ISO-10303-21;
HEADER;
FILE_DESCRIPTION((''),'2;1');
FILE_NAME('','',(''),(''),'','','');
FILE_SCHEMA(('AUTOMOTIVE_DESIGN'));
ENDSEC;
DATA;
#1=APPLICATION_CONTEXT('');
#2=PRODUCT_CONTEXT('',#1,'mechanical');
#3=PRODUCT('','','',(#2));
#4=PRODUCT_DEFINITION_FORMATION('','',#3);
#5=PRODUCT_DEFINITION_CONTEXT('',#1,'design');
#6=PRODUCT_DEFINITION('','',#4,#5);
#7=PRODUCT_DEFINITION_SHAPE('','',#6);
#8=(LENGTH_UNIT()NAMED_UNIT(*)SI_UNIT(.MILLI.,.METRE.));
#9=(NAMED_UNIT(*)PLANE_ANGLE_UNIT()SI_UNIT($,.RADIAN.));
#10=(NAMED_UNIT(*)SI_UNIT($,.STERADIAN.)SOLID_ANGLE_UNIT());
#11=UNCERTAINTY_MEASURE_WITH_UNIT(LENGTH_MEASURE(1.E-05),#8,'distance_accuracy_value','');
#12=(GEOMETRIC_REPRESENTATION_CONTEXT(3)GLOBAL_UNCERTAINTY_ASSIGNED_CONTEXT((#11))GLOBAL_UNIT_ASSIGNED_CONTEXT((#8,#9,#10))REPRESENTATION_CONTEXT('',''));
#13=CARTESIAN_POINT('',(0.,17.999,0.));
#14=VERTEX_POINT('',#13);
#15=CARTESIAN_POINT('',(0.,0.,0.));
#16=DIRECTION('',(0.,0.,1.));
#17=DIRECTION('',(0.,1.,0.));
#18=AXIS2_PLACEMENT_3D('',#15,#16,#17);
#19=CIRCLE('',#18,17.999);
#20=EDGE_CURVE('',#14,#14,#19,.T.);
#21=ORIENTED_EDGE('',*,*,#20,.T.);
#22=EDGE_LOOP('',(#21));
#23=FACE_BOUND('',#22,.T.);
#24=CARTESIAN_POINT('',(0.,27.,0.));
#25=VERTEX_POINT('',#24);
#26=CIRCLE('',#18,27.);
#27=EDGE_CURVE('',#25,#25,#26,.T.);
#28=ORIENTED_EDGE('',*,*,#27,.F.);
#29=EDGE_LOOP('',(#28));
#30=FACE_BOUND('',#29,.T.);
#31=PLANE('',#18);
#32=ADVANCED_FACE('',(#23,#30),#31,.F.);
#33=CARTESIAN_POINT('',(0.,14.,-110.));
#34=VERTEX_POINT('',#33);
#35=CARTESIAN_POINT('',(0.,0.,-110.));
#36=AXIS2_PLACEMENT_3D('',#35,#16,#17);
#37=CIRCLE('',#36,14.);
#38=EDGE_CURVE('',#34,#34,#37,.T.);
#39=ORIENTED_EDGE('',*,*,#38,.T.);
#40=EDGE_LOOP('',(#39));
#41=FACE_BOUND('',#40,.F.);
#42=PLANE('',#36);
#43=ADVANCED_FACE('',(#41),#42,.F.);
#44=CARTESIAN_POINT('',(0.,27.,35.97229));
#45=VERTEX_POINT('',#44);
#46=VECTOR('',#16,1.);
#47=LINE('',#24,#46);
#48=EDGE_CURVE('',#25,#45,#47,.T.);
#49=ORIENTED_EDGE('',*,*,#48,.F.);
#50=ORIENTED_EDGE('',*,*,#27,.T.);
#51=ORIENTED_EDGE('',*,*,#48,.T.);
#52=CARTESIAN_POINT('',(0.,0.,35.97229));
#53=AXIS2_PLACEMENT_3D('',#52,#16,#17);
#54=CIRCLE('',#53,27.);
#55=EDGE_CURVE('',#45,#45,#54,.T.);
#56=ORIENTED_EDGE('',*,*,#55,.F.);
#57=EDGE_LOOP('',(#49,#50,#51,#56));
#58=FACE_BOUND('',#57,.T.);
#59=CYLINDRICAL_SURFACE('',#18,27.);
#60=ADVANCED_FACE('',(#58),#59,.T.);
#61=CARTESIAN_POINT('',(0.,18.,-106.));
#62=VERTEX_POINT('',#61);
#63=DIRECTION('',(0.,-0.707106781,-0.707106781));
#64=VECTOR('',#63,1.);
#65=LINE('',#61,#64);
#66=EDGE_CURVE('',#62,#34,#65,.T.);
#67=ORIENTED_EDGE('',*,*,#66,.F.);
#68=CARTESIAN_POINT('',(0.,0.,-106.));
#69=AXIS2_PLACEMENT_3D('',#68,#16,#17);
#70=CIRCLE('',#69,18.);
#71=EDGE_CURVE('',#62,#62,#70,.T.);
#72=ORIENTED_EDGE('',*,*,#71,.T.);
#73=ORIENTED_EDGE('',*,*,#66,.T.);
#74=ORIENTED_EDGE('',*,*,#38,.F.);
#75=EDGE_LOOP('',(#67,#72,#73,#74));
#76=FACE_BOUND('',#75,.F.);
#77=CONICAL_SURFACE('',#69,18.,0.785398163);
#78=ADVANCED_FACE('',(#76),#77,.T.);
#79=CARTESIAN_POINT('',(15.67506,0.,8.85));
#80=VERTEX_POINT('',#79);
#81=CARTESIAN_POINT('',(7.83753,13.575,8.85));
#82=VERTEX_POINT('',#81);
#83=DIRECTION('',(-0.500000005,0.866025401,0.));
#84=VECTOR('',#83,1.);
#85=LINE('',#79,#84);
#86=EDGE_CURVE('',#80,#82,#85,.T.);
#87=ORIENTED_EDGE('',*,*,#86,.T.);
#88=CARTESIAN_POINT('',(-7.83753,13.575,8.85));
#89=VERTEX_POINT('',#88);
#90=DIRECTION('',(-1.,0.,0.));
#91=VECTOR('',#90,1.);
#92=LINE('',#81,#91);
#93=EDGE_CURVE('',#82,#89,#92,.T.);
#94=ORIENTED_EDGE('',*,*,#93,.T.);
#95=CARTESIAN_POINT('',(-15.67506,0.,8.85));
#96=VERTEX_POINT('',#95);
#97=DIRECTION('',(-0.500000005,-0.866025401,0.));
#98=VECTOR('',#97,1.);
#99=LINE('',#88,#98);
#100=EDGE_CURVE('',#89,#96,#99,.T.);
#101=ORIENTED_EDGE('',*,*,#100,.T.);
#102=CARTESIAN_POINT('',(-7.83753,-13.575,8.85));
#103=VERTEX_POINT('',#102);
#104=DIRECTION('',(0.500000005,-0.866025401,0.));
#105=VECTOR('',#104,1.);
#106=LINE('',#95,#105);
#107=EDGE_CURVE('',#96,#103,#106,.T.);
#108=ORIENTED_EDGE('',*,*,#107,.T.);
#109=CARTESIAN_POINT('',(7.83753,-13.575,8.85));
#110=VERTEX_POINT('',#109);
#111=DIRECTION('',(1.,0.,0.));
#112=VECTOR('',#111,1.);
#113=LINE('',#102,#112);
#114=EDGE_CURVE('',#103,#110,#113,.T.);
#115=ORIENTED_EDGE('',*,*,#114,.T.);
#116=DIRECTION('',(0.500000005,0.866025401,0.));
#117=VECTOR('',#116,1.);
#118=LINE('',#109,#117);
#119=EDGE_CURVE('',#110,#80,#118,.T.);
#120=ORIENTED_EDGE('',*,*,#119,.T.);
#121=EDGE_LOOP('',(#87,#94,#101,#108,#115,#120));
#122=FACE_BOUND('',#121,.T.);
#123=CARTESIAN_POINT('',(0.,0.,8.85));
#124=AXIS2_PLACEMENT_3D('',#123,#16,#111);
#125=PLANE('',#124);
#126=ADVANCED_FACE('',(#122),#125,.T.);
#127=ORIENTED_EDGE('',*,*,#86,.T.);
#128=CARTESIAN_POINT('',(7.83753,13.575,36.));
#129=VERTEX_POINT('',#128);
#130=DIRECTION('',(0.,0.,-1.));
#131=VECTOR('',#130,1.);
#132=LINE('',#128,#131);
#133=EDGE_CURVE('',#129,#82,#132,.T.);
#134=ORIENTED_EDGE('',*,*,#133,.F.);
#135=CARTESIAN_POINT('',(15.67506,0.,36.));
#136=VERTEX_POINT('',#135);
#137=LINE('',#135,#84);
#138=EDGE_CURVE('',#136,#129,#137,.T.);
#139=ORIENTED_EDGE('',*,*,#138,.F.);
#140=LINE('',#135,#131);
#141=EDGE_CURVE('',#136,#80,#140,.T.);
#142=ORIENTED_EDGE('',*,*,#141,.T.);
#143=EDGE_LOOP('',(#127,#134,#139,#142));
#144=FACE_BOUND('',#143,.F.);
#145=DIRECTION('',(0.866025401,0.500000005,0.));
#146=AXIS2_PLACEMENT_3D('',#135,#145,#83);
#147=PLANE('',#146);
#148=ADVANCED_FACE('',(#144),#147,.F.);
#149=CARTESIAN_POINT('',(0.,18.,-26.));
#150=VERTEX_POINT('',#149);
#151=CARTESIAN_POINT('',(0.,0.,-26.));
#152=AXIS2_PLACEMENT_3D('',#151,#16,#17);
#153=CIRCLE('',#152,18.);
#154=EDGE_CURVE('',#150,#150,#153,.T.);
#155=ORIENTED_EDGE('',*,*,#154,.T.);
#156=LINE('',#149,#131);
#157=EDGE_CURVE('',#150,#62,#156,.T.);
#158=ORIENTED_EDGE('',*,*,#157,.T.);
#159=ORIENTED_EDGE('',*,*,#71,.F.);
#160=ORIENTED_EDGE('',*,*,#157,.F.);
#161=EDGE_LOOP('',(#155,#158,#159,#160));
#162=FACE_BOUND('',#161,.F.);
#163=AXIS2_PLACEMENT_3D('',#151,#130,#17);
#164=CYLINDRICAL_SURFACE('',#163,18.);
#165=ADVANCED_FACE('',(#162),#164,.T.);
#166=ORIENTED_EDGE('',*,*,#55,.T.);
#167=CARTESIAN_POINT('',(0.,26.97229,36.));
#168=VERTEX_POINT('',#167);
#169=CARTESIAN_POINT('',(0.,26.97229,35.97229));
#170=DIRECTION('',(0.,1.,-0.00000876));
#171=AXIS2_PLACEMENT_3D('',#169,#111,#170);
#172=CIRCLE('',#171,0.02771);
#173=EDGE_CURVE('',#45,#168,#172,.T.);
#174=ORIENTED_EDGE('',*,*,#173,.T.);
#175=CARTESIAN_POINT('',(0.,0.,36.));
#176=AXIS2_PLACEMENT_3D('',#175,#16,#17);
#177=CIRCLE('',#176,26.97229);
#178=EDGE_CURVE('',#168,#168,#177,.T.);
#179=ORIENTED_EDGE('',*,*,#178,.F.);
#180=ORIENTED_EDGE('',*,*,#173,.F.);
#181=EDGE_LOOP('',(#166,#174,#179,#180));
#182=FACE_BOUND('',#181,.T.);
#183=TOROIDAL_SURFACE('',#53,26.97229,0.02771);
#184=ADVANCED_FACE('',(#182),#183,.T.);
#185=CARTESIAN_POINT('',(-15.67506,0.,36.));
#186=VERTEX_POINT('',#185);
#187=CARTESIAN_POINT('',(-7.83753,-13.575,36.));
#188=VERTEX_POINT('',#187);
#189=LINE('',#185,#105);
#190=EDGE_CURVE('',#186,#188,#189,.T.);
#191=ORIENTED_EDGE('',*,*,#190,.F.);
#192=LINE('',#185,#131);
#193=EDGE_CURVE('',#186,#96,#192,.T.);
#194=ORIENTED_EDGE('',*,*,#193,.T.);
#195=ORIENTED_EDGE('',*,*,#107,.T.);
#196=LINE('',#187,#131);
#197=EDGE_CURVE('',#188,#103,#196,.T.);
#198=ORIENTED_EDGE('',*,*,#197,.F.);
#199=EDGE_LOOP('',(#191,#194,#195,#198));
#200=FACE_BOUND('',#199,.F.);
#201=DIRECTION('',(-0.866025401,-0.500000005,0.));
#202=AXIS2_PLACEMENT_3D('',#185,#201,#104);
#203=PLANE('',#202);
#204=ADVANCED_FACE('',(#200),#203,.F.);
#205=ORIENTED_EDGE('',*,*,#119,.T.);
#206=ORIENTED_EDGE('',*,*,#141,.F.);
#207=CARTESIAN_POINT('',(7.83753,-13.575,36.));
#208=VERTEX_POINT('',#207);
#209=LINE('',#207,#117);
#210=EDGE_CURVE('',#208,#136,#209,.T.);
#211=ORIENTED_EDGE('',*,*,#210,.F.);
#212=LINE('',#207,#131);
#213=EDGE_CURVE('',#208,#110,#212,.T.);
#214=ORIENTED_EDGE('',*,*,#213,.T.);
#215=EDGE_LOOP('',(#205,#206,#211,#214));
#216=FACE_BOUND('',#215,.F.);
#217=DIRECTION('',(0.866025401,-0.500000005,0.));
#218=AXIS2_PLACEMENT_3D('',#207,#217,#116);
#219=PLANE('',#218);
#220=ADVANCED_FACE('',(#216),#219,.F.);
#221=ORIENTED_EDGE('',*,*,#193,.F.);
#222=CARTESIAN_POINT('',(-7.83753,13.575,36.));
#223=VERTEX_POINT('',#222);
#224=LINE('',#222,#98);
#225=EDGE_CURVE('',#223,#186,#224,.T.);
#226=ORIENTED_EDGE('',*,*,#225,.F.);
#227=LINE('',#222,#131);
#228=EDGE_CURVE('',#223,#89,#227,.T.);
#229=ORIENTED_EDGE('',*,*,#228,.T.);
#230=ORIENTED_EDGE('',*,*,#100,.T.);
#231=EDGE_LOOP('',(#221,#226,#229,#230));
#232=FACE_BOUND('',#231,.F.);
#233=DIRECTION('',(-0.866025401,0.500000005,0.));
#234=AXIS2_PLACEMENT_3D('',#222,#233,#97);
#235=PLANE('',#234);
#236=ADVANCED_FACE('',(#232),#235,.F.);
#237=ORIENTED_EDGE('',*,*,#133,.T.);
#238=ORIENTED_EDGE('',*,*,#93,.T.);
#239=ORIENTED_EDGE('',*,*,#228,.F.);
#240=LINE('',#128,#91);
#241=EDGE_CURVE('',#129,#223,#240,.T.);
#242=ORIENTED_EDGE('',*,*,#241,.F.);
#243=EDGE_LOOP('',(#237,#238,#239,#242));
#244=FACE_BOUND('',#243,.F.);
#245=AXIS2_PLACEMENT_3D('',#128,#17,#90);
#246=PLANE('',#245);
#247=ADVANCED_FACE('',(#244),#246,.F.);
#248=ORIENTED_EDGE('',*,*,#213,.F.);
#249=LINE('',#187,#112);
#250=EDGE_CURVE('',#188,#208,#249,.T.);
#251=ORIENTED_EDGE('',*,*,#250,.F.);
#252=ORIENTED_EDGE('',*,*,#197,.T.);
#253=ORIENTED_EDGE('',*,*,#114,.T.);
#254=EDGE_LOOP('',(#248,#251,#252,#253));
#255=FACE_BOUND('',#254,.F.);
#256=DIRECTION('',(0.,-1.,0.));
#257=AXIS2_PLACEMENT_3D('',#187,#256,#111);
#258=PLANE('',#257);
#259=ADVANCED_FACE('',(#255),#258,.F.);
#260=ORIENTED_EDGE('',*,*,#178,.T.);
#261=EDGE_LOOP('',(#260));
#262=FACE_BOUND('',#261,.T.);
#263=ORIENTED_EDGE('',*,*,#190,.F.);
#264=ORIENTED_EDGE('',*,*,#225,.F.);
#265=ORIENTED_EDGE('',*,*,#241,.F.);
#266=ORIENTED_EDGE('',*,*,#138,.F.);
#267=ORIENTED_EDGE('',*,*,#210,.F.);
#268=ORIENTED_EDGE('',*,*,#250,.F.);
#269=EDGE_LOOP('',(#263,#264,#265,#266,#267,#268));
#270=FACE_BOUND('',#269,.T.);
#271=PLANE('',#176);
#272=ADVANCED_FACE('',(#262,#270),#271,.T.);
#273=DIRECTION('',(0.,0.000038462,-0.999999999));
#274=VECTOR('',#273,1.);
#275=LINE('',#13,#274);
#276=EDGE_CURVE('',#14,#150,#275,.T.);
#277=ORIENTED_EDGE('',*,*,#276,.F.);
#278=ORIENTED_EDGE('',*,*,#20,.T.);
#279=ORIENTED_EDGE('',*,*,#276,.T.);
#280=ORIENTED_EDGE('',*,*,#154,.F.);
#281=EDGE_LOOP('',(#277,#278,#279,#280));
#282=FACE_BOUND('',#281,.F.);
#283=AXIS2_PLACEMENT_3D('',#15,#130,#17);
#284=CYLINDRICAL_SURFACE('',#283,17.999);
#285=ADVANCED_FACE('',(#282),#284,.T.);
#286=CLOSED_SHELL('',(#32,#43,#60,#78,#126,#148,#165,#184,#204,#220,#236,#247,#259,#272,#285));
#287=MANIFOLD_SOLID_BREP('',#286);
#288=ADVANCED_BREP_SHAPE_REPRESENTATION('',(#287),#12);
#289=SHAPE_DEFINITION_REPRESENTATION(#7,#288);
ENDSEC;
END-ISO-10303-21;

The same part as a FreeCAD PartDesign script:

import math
import FreeCAD as App
import Part
import Sketcher

V = App.Vector
Q = App.Units.Quantity

doc = App.newDocument("Part")
body = doc.addObject("PartDesign::Body", "Body")

sketch1 = body.newObject("Sketcher::SketchObject", "Sketch")
sketch1.AttachmentSupport = (doc.getObject("YZ_Plane"), [""])
sketch1.MapMode = "FlatFace"
sketch1.addGeometry(Part.LineSegment(V(17.999, 0, 0), V(27, 0, 0)), False)
sketch1.addGeometry(Part.LineSegment(V(27, 0, 0), V(27, 35.972, 0)), False)
sketch1.addGeometry(Part.ArcOfCircle(Part.Circle(V(26.972, 35.972, 0), V(0, 0, 1), 0.028), math.radians(0), math.radians(90)), False)
sketch1.addGeometry(Part.LineSegment(V(26.972, 36, 0), V(0, 36, 0)), False)
sketch1.addGeometry(Part.LineSegment(V(0, 36, 0), V(0, -110, 0)), False)
sketch1.addGeometry(Part.LineSegment(V(0, -110, 0), V(14, -110, 0)), False)
sketch1.addGeometry(Part.LineSegment(V(14, -110, 0), V(18, -106, 0)), False)
sketch1.addGeometry(Part.LineSegment(V(18, -106, 0), V(18, -26, 0)), False)
sketch1.addGeometry(Part.LineSegment(V(18, -26, 0), V(17.999, 0, 0)), False)
sketch1.addConstraint(Sketcher.Constraint("Coincident", 0, 2, 1, 1))
sketch1.addConstraint(Sketcher.Constraint("Coincident", 1, 2, 2, 1))
sketch1.addConstraint(Sketcher.Constraint("Coincident", 2, 2, 3, 1))
sketch1.addConstraint(Sketcher.Constraint("Coincident", 3, 2, 4, 1))
sketch1.addConstraint(Sketcher.Constraint("Coincident", 4, 2, 5, 1))
sketch1.addConstraint(Sketcher.Constraint("Coincident", 5, 2, 6, 1))
sketch1.addConstraint(Sketcher.Constraint("Coincident", 6, 2, 7, 1))
sketch1.addConstraint(Sketcher.Constraint("Coincident", 7, 2, 8, 1))
sketch1.addConstraint(Sketcher.Constraint("Coincident", 8, 2, 0, 1))
sketch1.addConstraint(Sketcher.Constraint("Horizontal", 0))
sketch1.addConstraint(Sketcher.Constraint("Vertical", 1))
sketch1.addConstraint(Sketcher.Constraint("Horizontal", 3))
sketch1.addConstraint(Sketcher.Constraint("Vertical", 4))
sketch1.addConstraint(Sketcher.Constraint("Horizontal", 5))
sketch1.addConstraint(Sketcher.Constraint("Vertical", 7))
sketch1.addConstraint(Sketcher.Constraint("PointOnObject", 0, 2, -1))
sketch1.addConstraint(Sketcher.Constraint("PointOnObject", 3, 2, -2))
sketch1.addConstraint(Sketcher.Constraint("Horizontal", 2, 3, 1, 2))
sketch1.addConstraint(Sketcher.Constraint("DistanceX", 5, 1, 5, 2, 14.0))
sketch1.addConstraint(Sketcher.Constraint("DistanceY", 4, 2, 4, 1, 146.0))
sketch1.addConstraint(Sketcher.Constraint("DistanceY", 7, 1, 7, 2, 80.0))
sketch1.addConstraint(Sketcher.Constraint("Angle", 6, Q("45 deg")))
sketch1.addConstraint(Sketcher.Constraint("Distance", 8, 26.0))
sketch1.addConstraint(Sketcher.Constraint("DistanceX", -1, 1, 0, 2, 27.0))
sketch1.addConstraint(Sketcher.Constraint("DistanceY", -1, 1, 2, 2, 36.0))
sketch1.addConstraint(Sketcher.Constraint("DistanceX", 0, 1, 0, 2, 9.001))
sketch1.addConstraint(Sketcher.Constraint("Radius", 2, 0.02771))
sketch1.addConstraint(Sketcher.Constraint("DistanceX", 3, 2, 3, 1, 26.97229))
revolution = body.newObject("PartDesign::Revolution", "Revolution")
revolution.Profile = sketch1
revolution.ReferenceAxis = (sketch1, ["V_Axis"])
revolution.Angle = 360

sketch2 = body.newObject("Sketcher::SketchObject", "Sketch001")
sketch2.AttachmentSupport = (doc.getObject("XY_Plane"), [""])
sketch2.MapMode = "FlatFace"
sketch2.AttachmentOffset = App.Placement(V(0, 0, 36), App.Rotation())
sketch2.addGeometry(Part.LineSegment(V(16, 0, 0), V(8, 14, 0)), False)
sketch2.addGeometry(Part.LineSegment(V(8, 14, 0), V(-8, 14, 0)), False)
sketch2.addGeometry(Part.LineSegment(V(-8, 14, 0), V(-16, 0, 0)), False)
sketch2.addGeometry(Part.LineSegment(V(-16, 0, 0), V(-8, -14, 0)), False)
sketch2.addGeometry(Part.LineSegment(V(-8, -14, 0), V(8, -14, 0)), False)
sketch2.addGeometry(Part.LineSegment(V(8, -14, 0), V(16, 0, 0)), False)
sketch2.addConstraint(Sketcher.Constraint("Coincident", 0, 2, 1, 1))
sketch2.addConstraint(Sketcher.Constraint("Coincident", 1, 2, 2, 1))
sketch2.addConstraint(Sketcher.Constraint("Coincident", 2, 2, 3, 1))
sketch2.addConstraint(Sketcher.Constraint("Coincident", 3, 2, 4, 1))
sketch2.addConstraint(Sketcher.Constraint("Coincident", 4, 2, 5, 1))
sketch2.addConstraint(Sketcher.Constraint("Coincident", 5, 2, 0, 1))
sketch2.addConstraint(Sketcher.Constraint("Horizontal", 1))
sketch2.addConstraint(Sketcher.Constraint("Horizontal", 4))
sketch2.addConstraint(Sketcher.Constraint("Symmetric", 0, 2, 3, 2, -1, 1))
sketch2.addConstraint(Sketcher.Constraint("Symmetric", 2, 2, 5, 2, -1, 1))
sketch2.addConstraint(Sketcher.Constraint("PointOnObject", 2, 2, -1))
sketch2.addConstraint(Sketcher.Constraint("Parallel", 2, 5))
sketch2.addConstraint(Sketcher.Constraint("Vertical", 1, 2, 3, 2))
sketch2.addConstraint(Sketcher.Constraint("Angle", 0, Q("120 deg")))
sketch2.addConstraint(Sketcher.Constraint("DistanceY", 3, 2, 1, 2, 27.15))
sketch2.addConstraint(Sketcher.Constraint("DistanceX", 1, 2, 1, 1, 15.67506))
pocket1 = body.newObject("PartDesign::Pocket", "Pocket")
pocket1.Profile = sketch2
pocket1.Length = 27.15

doc.recompute()
